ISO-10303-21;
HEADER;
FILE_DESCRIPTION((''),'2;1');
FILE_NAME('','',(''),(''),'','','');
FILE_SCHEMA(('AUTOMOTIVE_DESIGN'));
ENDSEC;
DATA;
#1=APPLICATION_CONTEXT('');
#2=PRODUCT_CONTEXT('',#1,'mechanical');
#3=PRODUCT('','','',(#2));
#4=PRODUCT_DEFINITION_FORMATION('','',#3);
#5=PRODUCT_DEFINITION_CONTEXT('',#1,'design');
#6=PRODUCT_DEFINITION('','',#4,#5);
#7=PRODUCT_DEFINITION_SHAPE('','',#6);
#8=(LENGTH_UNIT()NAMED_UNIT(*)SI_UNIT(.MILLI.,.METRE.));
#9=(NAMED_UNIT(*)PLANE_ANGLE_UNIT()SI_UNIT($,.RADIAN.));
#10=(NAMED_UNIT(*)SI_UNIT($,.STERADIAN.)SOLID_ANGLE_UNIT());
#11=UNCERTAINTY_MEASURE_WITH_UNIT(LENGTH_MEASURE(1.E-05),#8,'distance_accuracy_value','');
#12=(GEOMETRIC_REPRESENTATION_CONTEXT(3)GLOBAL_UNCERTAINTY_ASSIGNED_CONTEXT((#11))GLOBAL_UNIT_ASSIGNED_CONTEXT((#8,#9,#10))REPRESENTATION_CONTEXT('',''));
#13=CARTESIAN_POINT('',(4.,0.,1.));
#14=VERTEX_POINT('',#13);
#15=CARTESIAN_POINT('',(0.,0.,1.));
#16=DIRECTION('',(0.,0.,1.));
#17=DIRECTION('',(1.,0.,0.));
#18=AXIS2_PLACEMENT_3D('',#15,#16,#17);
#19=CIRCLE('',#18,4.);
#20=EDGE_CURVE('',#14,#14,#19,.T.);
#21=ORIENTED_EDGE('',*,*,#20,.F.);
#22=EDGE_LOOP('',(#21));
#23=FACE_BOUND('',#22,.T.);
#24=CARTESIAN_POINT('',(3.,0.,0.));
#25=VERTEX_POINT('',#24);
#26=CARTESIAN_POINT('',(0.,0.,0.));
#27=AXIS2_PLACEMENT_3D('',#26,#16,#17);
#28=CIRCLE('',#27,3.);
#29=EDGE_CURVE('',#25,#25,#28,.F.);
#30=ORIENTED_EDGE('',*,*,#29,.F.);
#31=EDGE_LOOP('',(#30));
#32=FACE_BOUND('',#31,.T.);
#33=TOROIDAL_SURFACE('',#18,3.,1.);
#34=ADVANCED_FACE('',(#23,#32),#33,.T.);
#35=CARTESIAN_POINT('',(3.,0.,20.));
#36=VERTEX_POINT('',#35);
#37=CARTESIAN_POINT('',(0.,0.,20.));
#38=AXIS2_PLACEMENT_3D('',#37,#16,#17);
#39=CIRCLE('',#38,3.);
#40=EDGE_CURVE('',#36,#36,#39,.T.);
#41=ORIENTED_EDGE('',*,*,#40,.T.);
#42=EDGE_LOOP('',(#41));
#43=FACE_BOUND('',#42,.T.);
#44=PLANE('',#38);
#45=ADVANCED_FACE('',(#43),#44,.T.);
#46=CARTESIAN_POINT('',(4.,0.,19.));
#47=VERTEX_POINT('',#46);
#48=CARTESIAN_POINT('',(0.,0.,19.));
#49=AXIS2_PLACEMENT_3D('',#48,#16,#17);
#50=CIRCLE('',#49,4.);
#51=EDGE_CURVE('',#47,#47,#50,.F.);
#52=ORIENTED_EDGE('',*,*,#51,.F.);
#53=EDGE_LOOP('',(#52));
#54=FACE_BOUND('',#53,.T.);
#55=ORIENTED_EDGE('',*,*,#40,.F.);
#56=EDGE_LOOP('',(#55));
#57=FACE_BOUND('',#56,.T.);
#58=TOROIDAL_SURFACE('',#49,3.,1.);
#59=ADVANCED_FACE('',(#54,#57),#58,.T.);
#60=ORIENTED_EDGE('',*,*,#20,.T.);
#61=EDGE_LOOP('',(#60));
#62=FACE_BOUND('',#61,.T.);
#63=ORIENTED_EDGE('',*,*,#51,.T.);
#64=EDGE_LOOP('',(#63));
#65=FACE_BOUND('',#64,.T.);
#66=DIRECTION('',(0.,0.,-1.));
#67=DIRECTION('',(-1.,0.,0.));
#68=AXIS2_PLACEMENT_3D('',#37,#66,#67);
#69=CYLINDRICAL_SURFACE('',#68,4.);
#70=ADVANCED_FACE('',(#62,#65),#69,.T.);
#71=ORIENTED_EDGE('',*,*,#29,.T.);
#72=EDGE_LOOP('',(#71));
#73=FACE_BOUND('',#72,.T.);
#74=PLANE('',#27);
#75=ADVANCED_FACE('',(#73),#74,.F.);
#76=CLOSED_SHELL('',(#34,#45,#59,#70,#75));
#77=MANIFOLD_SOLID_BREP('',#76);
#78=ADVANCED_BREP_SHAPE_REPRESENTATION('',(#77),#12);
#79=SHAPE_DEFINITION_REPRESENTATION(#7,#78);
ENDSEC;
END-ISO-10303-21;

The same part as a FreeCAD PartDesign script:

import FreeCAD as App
import Part
import Sketcher

V = App.Vector
Q = App.Units.Quantity


def edges_at(feature, points):
    """Names of the edges that pass closest to the given points."""
    edges = feature.Shape.Edges
    near = lambda p: min(range(len(edges)), key=lambda i: edges[i].distToShape(Part.Vertex(*p))[0])
    return sorted({f"Edge{near(p) + 1}" for p in points})

doc = App.newDocument("Part")
body = doc.addObject("PartDesign::Body", "Body")

# Sketch on XY plane
sketch1 = body.newObject("Sketcher::SketchObject", "Sketch")
sketch1.AttachmentSupport = (doc.getObject("XY_Plane"), [""])
sketch1.MapMode = "FlatFace"
sketch1.addGeometry(Part.Circle(V(0, 0, 0), V(0, 0, 1), 4), False)
sketch1.addConstraint([
    Sketcher.Constraint("Coincident", 0, 3, -1, 1),
    Sketcher.Constraint("Diameter", 0, Q("8 mm")),
])
pad1 = body.newObject("PartDesign::Pad", "Pad")
pad1.Profile = sketch1
pad1.Length = 20
doc.recompute()

fillet = body.newObject("PartDesign::Fillet", "Fillet")
fillet.Base = (pad1, edges_at(pad1, [(-4, 0, 0), (-4, 0, 20)]))
fillet.Radius = 1

doc.recompute()
